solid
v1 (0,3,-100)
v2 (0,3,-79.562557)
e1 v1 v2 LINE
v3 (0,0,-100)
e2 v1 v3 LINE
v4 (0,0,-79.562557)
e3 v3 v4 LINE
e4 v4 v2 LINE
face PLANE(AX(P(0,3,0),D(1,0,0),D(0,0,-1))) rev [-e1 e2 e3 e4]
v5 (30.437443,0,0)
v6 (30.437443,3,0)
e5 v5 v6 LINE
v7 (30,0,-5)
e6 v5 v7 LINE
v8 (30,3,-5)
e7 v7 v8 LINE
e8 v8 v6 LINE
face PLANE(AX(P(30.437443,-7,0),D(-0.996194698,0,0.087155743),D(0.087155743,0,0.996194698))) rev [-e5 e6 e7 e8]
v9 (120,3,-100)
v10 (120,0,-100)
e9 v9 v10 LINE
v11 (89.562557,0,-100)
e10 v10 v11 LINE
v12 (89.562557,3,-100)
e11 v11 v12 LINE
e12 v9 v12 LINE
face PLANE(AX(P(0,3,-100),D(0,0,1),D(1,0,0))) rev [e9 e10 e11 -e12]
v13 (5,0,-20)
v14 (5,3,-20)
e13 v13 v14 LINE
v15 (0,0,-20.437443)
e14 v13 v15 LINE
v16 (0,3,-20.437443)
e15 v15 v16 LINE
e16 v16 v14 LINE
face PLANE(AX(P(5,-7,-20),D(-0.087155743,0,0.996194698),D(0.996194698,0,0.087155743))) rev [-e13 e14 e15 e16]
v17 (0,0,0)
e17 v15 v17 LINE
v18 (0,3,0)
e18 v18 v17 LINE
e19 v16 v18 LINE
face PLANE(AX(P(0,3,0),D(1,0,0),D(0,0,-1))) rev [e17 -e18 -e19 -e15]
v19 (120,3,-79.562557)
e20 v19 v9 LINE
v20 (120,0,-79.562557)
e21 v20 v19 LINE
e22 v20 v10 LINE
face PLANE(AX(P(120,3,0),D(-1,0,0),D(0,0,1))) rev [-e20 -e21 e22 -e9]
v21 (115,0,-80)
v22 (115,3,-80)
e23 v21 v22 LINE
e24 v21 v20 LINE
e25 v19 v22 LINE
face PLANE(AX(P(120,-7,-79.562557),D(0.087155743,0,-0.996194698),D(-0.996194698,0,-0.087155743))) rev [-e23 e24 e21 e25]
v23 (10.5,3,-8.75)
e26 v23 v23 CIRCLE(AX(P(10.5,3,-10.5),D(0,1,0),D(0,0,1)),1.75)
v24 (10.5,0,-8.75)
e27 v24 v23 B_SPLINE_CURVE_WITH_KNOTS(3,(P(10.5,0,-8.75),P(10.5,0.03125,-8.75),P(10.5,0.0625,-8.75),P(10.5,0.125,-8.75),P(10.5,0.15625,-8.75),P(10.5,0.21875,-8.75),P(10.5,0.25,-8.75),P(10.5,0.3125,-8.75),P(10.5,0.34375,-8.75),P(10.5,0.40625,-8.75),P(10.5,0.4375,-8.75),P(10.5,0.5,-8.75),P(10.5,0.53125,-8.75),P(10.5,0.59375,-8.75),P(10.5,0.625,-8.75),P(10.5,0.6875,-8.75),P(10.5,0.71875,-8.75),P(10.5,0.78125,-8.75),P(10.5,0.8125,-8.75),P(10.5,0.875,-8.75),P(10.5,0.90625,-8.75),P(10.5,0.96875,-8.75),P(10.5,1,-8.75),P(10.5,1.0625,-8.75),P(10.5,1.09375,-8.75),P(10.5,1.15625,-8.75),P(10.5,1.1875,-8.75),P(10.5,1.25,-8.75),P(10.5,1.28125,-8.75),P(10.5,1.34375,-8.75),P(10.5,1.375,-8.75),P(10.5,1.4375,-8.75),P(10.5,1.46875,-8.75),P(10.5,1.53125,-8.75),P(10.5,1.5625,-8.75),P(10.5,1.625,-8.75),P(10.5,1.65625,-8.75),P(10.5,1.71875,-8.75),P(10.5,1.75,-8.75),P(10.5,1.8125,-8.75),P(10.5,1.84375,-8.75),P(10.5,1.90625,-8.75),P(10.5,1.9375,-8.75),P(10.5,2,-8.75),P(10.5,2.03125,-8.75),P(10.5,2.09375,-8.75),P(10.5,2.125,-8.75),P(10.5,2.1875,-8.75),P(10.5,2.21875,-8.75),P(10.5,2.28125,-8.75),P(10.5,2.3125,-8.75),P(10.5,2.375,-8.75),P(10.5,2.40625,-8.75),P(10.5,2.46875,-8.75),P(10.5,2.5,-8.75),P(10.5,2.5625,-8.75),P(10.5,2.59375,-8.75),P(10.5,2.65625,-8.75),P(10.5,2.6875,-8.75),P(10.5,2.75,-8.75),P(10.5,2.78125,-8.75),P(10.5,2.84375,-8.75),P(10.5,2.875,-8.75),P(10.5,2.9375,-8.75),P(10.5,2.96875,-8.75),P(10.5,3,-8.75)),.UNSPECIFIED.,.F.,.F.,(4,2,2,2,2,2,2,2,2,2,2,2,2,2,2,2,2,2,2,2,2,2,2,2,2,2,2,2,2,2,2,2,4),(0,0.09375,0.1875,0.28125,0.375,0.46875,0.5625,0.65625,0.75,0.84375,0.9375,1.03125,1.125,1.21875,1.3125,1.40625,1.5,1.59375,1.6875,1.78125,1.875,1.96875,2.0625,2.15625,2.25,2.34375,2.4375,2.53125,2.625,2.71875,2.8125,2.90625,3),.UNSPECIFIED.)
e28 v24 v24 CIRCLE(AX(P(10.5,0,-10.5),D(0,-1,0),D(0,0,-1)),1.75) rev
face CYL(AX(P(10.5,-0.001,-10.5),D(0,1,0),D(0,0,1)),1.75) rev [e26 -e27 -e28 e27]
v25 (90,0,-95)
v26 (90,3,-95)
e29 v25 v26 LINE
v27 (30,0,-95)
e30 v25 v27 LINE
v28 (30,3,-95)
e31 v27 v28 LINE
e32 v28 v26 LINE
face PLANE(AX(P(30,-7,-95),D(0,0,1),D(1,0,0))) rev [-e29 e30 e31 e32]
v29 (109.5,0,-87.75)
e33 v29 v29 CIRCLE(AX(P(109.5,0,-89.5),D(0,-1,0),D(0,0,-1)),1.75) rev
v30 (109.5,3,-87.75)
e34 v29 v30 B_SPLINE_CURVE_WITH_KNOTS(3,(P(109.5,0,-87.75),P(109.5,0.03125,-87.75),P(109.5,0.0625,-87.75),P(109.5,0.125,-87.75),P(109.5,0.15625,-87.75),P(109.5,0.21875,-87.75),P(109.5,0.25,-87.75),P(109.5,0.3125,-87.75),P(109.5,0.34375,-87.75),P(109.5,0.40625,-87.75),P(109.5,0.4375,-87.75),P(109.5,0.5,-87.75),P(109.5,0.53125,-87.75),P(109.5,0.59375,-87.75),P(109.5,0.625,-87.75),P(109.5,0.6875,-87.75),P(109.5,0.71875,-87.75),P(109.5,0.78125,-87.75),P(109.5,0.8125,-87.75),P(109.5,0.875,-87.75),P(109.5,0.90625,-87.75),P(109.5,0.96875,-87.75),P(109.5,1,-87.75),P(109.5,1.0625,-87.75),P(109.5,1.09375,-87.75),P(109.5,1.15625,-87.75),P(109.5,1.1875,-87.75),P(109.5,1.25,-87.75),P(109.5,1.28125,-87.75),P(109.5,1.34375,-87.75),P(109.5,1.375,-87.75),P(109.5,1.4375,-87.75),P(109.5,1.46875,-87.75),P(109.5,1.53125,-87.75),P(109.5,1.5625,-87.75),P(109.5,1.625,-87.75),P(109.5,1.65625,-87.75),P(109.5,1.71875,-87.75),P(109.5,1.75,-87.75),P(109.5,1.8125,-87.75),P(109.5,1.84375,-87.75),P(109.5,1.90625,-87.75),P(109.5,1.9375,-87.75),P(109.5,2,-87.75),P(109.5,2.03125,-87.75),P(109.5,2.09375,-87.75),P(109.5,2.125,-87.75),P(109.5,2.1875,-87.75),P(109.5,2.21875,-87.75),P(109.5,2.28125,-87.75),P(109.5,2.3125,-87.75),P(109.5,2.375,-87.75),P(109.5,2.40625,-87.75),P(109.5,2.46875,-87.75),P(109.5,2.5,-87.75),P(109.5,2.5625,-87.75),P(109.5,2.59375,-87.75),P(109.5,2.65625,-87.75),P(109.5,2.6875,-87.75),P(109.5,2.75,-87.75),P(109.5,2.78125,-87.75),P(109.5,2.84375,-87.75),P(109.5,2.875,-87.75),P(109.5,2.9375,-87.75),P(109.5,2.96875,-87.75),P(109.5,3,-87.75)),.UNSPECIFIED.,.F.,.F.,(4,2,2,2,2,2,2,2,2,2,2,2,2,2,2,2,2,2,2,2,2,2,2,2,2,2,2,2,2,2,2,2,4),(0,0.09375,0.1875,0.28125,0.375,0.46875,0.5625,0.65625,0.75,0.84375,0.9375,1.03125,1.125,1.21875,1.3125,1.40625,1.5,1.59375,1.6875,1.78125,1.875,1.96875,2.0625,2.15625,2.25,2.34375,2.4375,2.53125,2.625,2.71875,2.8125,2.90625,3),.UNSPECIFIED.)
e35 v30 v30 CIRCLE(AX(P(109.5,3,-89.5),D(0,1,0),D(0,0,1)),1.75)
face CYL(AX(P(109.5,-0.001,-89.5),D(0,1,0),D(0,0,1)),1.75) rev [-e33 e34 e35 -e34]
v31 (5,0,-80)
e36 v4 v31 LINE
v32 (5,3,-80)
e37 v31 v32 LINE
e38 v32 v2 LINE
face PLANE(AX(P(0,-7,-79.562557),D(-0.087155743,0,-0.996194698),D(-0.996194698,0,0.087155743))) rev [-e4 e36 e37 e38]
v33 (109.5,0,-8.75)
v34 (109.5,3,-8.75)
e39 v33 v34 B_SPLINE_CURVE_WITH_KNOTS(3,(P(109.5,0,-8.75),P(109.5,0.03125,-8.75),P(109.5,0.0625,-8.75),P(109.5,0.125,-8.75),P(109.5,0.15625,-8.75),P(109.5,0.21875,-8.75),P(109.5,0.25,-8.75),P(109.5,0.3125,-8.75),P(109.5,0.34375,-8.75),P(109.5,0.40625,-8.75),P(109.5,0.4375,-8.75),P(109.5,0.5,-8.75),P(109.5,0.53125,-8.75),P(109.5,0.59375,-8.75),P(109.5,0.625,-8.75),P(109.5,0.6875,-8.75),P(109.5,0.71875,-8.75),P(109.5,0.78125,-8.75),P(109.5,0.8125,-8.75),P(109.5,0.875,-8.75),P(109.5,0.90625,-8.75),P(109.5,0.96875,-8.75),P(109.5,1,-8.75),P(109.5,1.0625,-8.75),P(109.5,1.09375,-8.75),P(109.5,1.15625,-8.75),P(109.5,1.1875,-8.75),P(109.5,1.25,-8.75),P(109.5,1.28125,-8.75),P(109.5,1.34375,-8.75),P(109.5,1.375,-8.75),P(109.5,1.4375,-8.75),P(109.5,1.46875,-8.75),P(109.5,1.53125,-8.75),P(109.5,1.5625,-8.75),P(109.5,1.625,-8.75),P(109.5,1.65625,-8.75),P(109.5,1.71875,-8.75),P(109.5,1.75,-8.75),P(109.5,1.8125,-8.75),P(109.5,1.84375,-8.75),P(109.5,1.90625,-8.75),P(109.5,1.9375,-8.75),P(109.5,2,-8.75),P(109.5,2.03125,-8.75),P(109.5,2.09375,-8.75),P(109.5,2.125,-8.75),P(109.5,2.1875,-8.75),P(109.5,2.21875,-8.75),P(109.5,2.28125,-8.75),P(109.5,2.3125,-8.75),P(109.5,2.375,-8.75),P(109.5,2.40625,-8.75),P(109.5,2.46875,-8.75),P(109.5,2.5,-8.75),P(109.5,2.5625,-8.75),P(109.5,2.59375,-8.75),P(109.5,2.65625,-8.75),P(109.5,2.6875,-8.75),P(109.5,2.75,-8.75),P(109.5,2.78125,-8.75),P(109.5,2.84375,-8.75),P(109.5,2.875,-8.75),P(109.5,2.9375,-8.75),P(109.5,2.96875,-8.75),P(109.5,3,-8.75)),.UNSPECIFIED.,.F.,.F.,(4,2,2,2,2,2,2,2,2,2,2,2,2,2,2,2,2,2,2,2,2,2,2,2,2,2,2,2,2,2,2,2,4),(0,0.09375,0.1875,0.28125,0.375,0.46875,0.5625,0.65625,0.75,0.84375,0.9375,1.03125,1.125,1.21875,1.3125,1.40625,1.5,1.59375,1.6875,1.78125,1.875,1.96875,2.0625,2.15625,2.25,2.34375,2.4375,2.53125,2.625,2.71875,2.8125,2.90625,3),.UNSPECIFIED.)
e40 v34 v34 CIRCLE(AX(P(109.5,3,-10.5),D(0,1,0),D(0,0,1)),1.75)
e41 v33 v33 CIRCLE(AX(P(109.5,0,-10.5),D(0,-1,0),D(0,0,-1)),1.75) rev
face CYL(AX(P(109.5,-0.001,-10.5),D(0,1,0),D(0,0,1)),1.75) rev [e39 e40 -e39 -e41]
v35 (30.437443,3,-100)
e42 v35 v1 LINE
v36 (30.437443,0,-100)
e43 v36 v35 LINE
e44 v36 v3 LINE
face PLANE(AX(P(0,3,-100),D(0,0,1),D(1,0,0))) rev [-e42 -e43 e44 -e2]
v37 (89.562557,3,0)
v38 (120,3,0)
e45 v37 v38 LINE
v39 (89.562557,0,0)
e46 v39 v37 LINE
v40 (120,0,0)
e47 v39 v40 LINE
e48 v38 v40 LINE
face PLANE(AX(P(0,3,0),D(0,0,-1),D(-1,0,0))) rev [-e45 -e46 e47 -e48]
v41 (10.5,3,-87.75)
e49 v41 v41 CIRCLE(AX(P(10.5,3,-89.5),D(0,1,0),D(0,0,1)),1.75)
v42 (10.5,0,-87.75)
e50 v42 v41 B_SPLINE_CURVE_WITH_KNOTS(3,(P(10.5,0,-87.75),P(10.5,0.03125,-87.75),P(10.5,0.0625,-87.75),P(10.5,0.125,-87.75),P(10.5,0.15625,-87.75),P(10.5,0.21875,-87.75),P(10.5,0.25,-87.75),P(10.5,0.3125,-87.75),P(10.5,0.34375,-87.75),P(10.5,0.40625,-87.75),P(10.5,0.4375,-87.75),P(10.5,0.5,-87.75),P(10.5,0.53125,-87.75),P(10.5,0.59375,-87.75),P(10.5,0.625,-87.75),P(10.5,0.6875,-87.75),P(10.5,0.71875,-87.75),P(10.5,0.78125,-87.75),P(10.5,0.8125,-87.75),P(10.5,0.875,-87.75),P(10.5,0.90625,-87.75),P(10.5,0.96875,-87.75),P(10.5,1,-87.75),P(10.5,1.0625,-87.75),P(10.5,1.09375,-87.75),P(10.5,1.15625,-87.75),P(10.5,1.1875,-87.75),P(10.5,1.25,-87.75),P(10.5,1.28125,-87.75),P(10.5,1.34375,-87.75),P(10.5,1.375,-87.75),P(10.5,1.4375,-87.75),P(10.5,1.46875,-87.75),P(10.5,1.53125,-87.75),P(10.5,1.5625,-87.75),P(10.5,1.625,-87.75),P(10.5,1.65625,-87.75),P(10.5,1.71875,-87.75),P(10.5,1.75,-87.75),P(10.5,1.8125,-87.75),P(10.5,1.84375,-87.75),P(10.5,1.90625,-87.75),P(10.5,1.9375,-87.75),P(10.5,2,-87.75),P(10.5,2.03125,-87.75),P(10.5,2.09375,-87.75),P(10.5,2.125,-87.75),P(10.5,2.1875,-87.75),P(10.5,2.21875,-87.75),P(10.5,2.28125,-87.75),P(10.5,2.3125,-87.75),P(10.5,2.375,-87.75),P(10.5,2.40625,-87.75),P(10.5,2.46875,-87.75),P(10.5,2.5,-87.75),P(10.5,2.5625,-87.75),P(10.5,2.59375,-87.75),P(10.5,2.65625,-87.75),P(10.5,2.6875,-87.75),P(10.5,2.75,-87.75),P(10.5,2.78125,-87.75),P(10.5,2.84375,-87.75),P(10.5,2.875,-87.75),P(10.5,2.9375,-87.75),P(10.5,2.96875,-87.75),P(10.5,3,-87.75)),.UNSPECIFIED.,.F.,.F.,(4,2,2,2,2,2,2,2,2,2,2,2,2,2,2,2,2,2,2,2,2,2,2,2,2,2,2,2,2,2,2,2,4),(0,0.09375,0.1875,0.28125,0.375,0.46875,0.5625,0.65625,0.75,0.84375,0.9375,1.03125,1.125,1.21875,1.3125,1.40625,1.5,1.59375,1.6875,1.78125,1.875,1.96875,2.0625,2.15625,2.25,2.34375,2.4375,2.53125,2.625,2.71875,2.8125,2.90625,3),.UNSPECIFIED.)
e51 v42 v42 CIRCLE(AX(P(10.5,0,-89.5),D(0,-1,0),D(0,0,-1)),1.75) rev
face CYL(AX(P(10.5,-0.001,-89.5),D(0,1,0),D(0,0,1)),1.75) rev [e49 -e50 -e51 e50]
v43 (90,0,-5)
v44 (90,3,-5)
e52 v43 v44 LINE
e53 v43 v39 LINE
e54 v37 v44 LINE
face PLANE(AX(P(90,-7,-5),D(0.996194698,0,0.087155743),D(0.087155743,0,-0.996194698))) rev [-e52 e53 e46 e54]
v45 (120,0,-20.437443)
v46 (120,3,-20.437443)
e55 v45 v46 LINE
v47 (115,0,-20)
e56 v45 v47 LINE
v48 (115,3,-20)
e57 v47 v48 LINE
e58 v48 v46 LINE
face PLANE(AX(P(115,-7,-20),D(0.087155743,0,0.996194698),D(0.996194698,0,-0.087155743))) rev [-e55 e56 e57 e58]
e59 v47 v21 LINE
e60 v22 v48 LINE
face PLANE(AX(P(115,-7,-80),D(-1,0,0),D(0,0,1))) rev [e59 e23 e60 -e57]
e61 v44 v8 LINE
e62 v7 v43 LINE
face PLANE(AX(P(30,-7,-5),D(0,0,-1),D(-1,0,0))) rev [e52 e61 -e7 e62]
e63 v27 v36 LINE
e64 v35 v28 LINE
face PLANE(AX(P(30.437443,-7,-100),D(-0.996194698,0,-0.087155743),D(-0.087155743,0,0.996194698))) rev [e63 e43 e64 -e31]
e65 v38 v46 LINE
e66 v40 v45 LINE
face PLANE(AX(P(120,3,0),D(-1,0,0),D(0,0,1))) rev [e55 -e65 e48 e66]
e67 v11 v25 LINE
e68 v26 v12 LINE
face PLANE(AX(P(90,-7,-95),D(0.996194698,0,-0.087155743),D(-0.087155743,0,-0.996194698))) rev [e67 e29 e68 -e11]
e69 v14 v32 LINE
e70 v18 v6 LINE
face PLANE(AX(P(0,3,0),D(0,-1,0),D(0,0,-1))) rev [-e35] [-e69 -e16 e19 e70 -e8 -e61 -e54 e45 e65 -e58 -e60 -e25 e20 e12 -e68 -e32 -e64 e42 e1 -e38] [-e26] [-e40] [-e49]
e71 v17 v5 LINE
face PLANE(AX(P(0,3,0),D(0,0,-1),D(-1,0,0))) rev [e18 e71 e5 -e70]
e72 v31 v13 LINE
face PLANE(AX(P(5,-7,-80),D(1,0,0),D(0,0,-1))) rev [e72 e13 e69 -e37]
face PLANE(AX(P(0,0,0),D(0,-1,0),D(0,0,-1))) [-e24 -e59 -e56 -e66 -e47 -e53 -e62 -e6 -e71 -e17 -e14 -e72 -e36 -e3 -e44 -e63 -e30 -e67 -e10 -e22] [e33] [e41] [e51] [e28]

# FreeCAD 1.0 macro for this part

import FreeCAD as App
import Part
import Sketcher

V = App.Vector
Q = App.Units.Quantity


def add_polygon(sketch, points):
    """Adds a closed chain of lines whose ends are joined by coincident constraints."""
    first, n = sketch.GeometryCount, len(points)
    for a, b in zip(points, points[1:] + points[:1]):
        sketch.addGeometry(Part.LineSegment(App.Vector(*a, 0), App.Vector(*b, 0)), False)
    for i in range(n):
        sketch.addConstraint(Sketcher.Constraint("Coincident", first + i, 2, first + (i + 1) % n, 1))

doc = App.newDocument("Part")
params = doc.addObject("Spreadsheet::Sheet", "Params")
for row, (alias, value) in enumerate([
    ("sketch1_width", "120 mm"),
    ("sketch1_height", "100 mm"),
    ("pad1_length", "3 mm"),
    ("sketch2_width", "60 mm"),
    ("pocket1_length", "10 mm"),
    ("sketch3_diameter", "3.5 mm"),
    ("sketch4_diameter", "3.5 mm"),
    ("sketch5_diameter", "3.5 mm"),
    ("sketch6_diameter", "3.5 mm"),
], start=1):
    params.set(f"A{row}", alias)
    params.set(f"B{row}", "=" + value)
    params.setAlias(f"B{row}", alias)

body = doc.addObject("PartDesign::Body", "Body")

# Sketch on XZ plane
sketch1 = body.newObject("Sketcher::SketchObject", "Sketch")
sketch1.AttachmentSupport = (doc.getObject("XZ_Plane"), [""])
sketch1.MapMode = "FlatFace"
add_polygon(sketch1, [(0, -100), (0, 0), (120, 0), (120, -100)])  # lines 0-3
sketch1.addConstraint(Sketcher.Constraint("Vertical", 0))
sketch1.addConstraint(Sketcher.Constraint("Horizontal", 1))
sketch1.addConstraint(Sketcher.Constraint("Vertical", 2))
sketch1.addConstraint(Sketcher.Constraint("Horizontal", 3))
sketch1.addConstraint(Sketcher.Constraint("Coincident", 0, 2, -1, 1))
sketch1.addConstraint(Sketcher.Constraint("DistanceX", 1, 1, 1, 2, Q("120 mm")))
sketch1.addConstraint(Sketcher.Constraint("DistanceY", 0, 1, 0, 2, Q("100 mm")))
sketch1.setExpression("Constraints[9]", "Params.sketch1_width")
sketch1.setExpression("Constraints[10]", "Params.sketch1_height")
pad1 = body.newObject("PartDesign::Pad", "Pad")
pad1.Profile = sketch1
pad1.setExpression("Length", "Params.pad1_length")
pad1.Reversed = True

# Sketch on XZ plane
sketch2 = body.newObject("Sketcher::SketchObject", "Sketch001")
sketch2.AttachmentSupport = (doc.getObject("XZ_Plane"), [""])
sketch2.MapMode = "FlatFace"
sketch2.AttachmentOffset = App.Placement(V(0, 0, -3), App.Rotation())
add_polygon(sketch2, [(5, -80), (0, -79.562557), (0, -20.437443), (5, -20)])  # lines 0-3
add_polygon(sketch2, [(30.437443, -100), (30, -95), (90, -95), (89.562557, -100)])  # lines 4-7
add_polygon(sketch2, [(120, -79.562557), (115, -80), (115, -20), (120, -20.437443)])  # lines 8-11
add_polygon(sketch2, [(30, -5), (30.437443, 0), (89.562557, 0), (90, -5)])  # lines 12-15
sketch2.addConstraint(Sketcher.Constraint("Vertical", 1))
sketch2.addConstraint(Sketcher.Constraint("Vertical", 3))
sketch2.addConstraint(Sketcher.Constraint("Horizontal", 5))
sketch2.addConstraint(Sketcher.Constraint("Horizontal", 7))
sketch2.addConstraint(Sketcher.Constraint("Vertical", 9))
sketch2.addConstraint(Sketcher.Constraint("Vertical", 11))
sketch2.addConstraint(Sketcher.Constraint("Horizontal", 13))
sketch2.addConstraint(Sketcher.Constraint("Horizontal", 15))
sketch2.addConstraint(Sketcher.Constraint("PointOnObject", 0, 2, -2))
sketch2.addConstraint(Sketcher.Constraint("PointOnObject", 12, 2, -1))
sketch2.addConstraint(Sketcher.Constraint("Perpendicular", 2, 4))
sketch2.addConstraint(Sketcher.Constraint("Perpendicular", 0, 6))
sketch2.addConstraint(Sketcher.Constraint("Perpendicular", 4, 8))
sketch2.addConstraint(Sketcher.Constraint("Perpendicular", 6, 10))
sketch2.addConstraint(Sketcher.Constraint("Perpendicular", 10, 12))
sketch2.addConstraint(Sketcher.Constraint("Perpendicular", 8, 14))
sketch2.addConstraint(Sketcher.Constraint("Horizontal", 3, 2, 8, 2))
sketch2.addConstraint(Sketcher.Constraint("Horizontal", 2, 2, 9, 2))
sketch2.addConstraint(Sketcher.Constraint("Horizontal", 1, 2, 10, 2))
sketch2.addConstraint(Sketcher.Constraint("Horizontal", 0, 2, 11, 2))
sketch2.addConstraint(Sketcher.Constraint("Vertical", 7, 2, 12, 2))
sketch2.addConstraint(Sketcher.Constraint("Vertical", 6, 2, 13, 2))
sketch2.addConstraint(Sketcher.Constraint("Vertical", 5, 2, 14, 2))
sketch2.addConstraint(Sketcher.Constraint("Equal", 13, 1))
sketch2.addConstraint(Sketcher.Constraint("Equal", 15, 3))
sketch2.addConstraint(Sketcher.Constraint("DistanceX", 5, 1, 5, 2, Q("60 mm")))
sketch2.addConstraint(Sketcher.Constraint("Angle", 0, Q("175 deg")))
sketch2.addConstraint(Sketcher.Constraint("DistanceX", -1, 1, 2, 2, Q("5 mm")))
sketch2.addConstraint(Sketcher.Constraint("DistanceY", 2, 2, -1, 1, Q("20 mm")))
sketch2.addConstraint(Sketcher.Constraint("DistanceX", -1, 1, 4, 2, Q("30 mm")))
sketch2.addConstraint(Sketcher.Constraint("DistanceY", 4, 2, -1, 1, Q("95 mm")))
sketch2.addConstraint(Sketcher.Constraint("DistanceX", -1, 1, 8, 2, Q("115 mm")))
sketch2.setExpression("Constraints[41]", "Params.sketch2_width")
pocket1 = body.newObject("PartDesign::Pocket", "Pocket")
pocket1.Profile = sketch2
pocket1.setExpression("Length", "Params.pocket1_length")
pocket1.Reversed = True

# Sketch on XZ plane
sketch3 = body.newObject("Sketcher::SketchObject", "Sketch002")
sketch3.AttachmentSupport = (doc.getObject("XZ_Plane"), [""])
sketch3.MapMode = "FlatFace"
sketch3.AttachmentOffset = App.Placement(V(0, 0, -3), App.Rotation())
sketch3.addGeometry(Part.Circle(V(10.5, -89.5, 0), V(0, 0, 1), 1.8), False)
sketch3.addConstraint(Sketcher.Constraint("Diameter", 0, Q("3.5 mm")))
sketch3.addConstraint(Sketcher.Constraint("DistanceX", -1, 1, 0, 3, Q("10.5 mm")))
sketch3.addConstraint(Sketcher.Constraint("DistanceY", 0, 3, -1, 1, Q("89.5 mm")))
sketch3.setExpression("Constraints[0]", "Params.sketch3_diameter")
pocket2 = body.newObject("PartDesign::Pocket", "Pocket001")
pocket2.Profile = sketch3
pocket2.Type = "UpToFirst"
pocket2.Reversed = True

# Sketch on XZ plane
sketch4 = body.newObject("Sketcher::SketchObject", "Sketch003")
sketch4.AttachmentSupport = (doc.getObject("XZ_Plane"), [""])
sketch4.MapMode = "FlatFace"
sketch4.AttachmentOffset = App.Placement(V(0, 0, -3), App.Rotation())
sketch4.addGeometry(Part.Circle(V(109.5, -89.5, 0), V(0, 0, 1), 1.8), False)
sketch4.addConstraint(Sketcher.Constraint("Diameter", 0, Q("3.5 mm")))
sketch4.addConstraint(Sketcher.Constraint("DistanceX", -1, 1, 0, 3, Q("109.5 mm")))
sketch4.addConstraint(Sketcher.Constraint("DistanceY", 0, 3, -1, 1, Q("89.5 mm")))
sketch4.setExpression("Constraints[0]", "Params.sketch4_diameter")
pocket3 = body.newObject("PartDesign::Pocket", "Pocket002")
pocket3.Profile = sketch4
pocket3.Type = "UpToFirst"
pocket3.Reversed = True

# Sketch on XZ plane
sketch5 = body.newObject("Sketcher::SketchObject", "Sketch004")
sketch5.AttachmentSupport = (doc.getObject("XZ_Plane"), [""])
sketch5.MapMode = "FlatFace"
sketch5.AttachmentOffset = App.Placement(V(0, 0, -3), App.Rotation())
sketch5.addGeometry(Part.Circle(V(109.5, -10.5, 0), V(0, 0, 1), 1.8), False)
sketch5.addConstraint(Sketcher.Constraint("Diameter", 0, Q("3.5 mm")))
sketch5.addConstraint(Sketcher.Constraint("DistanceX", -1, 1, 0, 3, Q("109.5 mm")))
sketch5.addConstraint(Sketcher.Constraint("DistanceY", 0, 3, -1, 1, Q("10.5 mm")))
sketch5.setExpression("Constraints[0]", "Params.sketch5_diameter")
pocket4 = body.newObject("PartDesign::Pocket", "Pocket003")
pocket4.Profile = sketch5
pocket4.Type = "UpToFirst"
pocket4.Reversed = True

# Sketch on XZ plane
sketch6 = body.newObject("Sketcher::SketchObject", "Sketch005")
sketch6.AttachmentSupport = (doc.getObject("XZ_Plane"), [""])
sketch6.MapMode = "FlatFace"
sketch6.AttachmentOffset = App.Placement(V(0, 0, -3), App.Rotation())
sketch6.addGeometry(Part.Circle(V(10.5, -10.5, 0), V(0, 0, 1), 1.8), False)
sketch6.addConstraint(Sketcher.Constraint("Diameter", 0, Q("3.5 mm")))
sketch6.addConstraint(Sketcher.Constraint("DistanceX", -1, 1, 0, 3, Q("10.5 mm")))
sketch6.addConstraint(Sketcher.Constraint("DistanceY", 0, 3, -1, 1, Q("10.5 mm")))
sketch6.setExpression("Constraints[0]", "Params.sketch6_diameter")
pocket5 = body.newObject("PartDesign::Pocket", "Pocket004")
pocket5.Profile = sketch6
pocket5.Type = "UpToFirst"
pocket5.Reversed = True

doc.recompute()
